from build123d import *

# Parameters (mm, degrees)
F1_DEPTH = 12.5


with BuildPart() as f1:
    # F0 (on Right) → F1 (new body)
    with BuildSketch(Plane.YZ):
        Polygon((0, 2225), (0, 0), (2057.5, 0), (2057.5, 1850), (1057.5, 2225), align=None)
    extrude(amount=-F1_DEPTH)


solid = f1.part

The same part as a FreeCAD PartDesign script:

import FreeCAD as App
import Part
import Sketcher
from FreeCAD import Vector


def add_polygon(sketch, points):
    """Adds a closed chain of lines whose ends are joined by coincident constraints."""
    first, n = sketch.GeometryCount, len(points)
    for a, b in zip(points, points[1:] + points[:1]):
        sketch.addGeometry(Part.LineSegment(App.Vector(*a, 0), App.Vector(*b, 0)), False)
    for i in range(n):
        sketch.addConstraint(Sketcher.Constraint("Coincident", first + i, 2, first + (i + 1) % n, 1))

doc = App.newDocument("Part")
body = doc.addObject("PartDesign::Body", "Body")

# Sketch on YZ plane
sketch1 = body.newObject("Sketcher::SketchObject", "Sketch")
sketch1.AttachmentSupport = (doc.getObject("YZ_Plane"), [""])
sketch1.MapMode = "FlatFace"
add_polygon(sketch1, [(0, 2225), (0, 0), (2058, 0), (2058, 1850), (1058, 2225)])  # lines 0-4
sketch1.addConstraint(Sketcher.Constraint("Vertical", 0))
sketch1.addConstraint(Sketcher.Constraint("Horizontal", 1))
sketch1.addConstraint(Sketcher.Constraint("Vertical", 2))
sketch1.addConstraint(Sketcher.Constraint("Horizontal", 4))
sketch1.addConstraint(Sketcher.Constraint("Coincident", 0, 2, -1, 1))
sketch1.addConstraint(Sketcher.Constraint("DistanceY", 0, 2, 0, 1, 2225.0))
sketch1.addConstraint(Sketcher.Constraint("DistanceY", 2, 1, 2, 2, 1850.0))
sketch1.addConstraint(Sketcher.Constraint("DistanceX", 1, 1, 1, 2, 2057.5))
sketch1.addConstraint(Sketcher.Constraint("DistanceX", 4, 2, 4, 1, 1057.5))
pad1 = body.newObject("PartDesign::Pad", "Pad")
pad1.Profile = sketch1
pad1.Length = 12.5
pad1.Reversed = True

doc.recompute()
